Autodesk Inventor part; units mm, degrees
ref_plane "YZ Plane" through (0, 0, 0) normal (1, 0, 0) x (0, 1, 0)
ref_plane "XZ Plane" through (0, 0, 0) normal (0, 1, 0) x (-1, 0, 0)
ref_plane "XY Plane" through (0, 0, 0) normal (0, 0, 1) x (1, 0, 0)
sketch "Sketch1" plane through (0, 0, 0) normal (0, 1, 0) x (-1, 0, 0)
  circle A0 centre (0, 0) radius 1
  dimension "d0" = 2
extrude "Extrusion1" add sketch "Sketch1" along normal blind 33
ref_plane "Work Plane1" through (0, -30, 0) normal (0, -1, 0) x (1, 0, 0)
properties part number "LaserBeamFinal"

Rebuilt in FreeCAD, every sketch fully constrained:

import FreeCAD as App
import Part
import Sketcher

V = App.Vector
Q = App.Units.Quantity

doc = App.newDocument("Part")
body = doc.addObject("PartDesign::Body", "Body")

# Sketch on XZ plane
sketch1 = body.newObject("Sketcher::SketchObject", "Sketch")
sketch1.AttachmentSupport = (doc.getObject("XZ_Plane"), [""])
sketch1.MapMode = "FlatFace"
sketch1.addGeometry(Part.Circle(V(0, 0, 0), V(0, 0, 1), 1), False)
sketch1.addConstraint([
    Sketcher.Constraint("Coincident", 0, 3, -1, 1),
    Sketcher.Constraint("Diameter", 0, Q("2 mm")),
])
pad1 = body.newObject("PartDesign::Pad", "Pad")
pad1.Profile = sketch1
pad1.Length = 33
pad1.Reversed = True

doc.recompute()
